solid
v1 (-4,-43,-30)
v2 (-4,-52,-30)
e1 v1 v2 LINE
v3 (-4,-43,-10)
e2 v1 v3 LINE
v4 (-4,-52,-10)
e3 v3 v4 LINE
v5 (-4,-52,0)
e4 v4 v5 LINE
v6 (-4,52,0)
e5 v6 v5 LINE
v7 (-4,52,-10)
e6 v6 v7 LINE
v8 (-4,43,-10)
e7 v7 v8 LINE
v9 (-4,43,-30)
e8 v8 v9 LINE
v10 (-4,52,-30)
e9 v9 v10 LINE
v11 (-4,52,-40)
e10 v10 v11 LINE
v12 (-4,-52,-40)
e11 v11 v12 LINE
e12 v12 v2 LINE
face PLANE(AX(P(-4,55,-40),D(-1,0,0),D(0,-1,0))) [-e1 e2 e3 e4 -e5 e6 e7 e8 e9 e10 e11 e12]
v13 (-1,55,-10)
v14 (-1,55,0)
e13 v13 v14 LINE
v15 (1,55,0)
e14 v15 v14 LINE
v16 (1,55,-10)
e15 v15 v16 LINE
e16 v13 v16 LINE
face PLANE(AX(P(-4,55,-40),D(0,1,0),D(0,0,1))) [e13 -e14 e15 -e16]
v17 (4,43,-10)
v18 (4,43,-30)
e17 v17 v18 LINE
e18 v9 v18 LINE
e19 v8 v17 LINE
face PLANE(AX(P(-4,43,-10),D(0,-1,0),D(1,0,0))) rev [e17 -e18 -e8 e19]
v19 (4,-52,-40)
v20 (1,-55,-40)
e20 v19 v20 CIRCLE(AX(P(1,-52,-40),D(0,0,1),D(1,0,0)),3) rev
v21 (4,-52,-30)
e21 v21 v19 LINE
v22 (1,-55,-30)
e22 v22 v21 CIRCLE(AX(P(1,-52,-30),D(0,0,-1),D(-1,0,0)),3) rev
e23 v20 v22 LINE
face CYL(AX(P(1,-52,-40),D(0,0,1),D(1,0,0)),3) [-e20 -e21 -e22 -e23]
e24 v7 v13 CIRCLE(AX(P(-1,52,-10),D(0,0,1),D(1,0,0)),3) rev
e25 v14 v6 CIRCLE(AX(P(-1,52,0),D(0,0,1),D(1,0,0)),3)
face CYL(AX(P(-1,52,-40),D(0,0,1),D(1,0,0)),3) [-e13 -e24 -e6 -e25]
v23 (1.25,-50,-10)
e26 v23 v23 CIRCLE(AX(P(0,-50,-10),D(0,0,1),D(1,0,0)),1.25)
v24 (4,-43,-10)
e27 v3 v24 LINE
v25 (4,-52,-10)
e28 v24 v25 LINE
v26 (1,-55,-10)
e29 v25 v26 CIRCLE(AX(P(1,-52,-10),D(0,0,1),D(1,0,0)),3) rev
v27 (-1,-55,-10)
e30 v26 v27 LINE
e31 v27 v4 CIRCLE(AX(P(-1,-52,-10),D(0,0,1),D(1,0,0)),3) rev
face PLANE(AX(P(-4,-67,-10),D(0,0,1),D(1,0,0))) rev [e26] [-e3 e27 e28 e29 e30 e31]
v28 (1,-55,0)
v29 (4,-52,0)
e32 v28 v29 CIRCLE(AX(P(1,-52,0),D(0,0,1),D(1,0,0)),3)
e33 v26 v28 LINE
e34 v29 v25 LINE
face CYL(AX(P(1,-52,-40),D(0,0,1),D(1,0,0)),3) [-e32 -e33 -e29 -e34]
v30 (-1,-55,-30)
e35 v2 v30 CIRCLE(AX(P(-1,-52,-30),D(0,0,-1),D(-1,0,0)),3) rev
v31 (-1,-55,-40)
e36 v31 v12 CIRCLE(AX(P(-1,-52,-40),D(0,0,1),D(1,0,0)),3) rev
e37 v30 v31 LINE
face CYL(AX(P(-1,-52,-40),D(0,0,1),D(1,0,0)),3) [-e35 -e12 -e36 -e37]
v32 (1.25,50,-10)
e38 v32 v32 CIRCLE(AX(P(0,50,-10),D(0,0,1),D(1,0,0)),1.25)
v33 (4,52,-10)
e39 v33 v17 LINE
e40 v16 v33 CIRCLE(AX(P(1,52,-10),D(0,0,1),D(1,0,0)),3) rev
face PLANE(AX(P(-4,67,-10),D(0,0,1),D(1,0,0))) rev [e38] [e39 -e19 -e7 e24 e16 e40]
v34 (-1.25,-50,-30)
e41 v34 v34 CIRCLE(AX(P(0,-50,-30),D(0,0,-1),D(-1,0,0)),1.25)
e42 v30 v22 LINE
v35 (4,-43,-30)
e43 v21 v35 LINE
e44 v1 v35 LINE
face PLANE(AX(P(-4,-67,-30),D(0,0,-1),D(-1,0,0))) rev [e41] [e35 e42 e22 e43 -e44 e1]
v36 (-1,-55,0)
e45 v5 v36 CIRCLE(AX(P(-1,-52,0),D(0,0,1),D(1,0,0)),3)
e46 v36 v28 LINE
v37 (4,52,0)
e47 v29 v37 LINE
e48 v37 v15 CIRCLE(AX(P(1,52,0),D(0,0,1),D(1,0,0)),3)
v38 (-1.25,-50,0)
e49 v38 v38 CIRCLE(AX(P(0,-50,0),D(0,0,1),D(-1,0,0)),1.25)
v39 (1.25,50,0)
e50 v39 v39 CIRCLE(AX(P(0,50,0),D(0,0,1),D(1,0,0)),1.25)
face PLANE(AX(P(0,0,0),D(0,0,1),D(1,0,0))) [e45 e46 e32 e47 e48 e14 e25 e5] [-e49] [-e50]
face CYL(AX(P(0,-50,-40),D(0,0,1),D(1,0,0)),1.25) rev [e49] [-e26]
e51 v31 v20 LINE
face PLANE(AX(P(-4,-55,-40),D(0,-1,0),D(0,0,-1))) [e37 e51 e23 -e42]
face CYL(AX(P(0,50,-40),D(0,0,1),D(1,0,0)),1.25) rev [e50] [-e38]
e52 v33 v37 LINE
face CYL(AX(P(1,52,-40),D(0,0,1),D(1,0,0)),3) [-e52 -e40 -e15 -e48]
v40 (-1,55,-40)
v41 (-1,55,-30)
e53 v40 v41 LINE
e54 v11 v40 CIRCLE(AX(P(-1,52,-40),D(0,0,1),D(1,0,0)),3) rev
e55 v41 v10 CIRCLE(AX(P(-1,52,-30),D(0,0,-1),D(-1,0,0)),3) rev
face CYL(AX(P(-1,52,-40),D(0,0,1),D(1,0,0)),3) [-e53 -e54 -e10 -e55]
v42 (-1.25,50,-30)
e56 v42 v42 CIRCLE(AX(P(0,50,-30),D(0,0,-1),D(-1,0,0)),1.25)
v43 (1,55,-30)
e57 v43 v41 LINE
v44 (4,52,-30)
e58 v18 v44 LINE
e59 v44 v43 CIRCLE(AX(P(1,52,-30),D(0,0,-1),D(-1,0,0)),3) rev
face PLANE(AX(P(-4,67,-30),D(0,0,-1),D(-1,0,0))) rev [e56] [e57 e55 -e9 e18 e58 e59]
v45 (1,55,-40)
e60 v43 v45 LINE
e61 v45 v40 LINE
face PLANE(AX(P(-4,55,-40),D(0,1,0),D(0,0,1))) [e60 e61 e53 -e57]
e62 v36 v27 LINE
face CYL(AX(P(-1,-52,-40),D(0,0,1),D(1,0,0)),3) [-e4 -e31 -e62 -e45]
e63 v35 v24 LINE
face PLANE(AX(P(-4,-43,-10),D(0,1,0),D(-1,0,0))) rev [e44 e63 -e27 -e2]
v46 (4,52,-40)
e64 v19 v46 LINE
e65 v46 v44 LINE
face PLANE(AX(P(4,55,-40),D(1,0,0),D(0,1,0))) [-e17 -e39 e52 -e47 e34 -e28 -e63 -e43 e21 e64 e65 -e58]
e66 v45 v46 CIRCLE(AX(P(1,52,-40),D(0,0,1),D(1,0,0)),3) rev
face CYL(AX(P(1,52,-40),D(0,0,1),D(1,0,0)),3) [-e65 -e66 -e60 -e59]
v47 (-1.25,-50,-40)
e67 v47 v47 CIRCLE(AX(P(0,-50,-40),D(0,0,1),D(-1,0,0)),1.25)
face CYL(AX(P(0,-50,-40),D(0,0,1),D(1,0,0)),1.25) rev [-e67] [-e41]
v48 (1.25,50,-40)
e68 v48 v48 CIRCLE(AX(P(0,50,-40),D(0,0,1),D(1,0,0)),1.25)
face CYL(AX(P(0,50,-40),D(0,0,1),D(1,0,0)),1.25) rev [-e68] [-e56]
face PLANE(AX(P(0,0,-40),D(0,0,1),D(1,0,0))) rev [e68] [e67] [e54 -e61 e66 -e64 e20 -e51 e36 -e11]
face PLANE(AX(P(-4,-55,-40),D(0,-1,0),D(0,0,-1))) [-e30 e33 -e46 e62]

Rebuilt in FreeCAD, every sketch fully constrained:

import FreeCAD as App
import Part
import Sketcher

V = App.Vector
Q = App.Units.Quantity


def edges_at(feature, points):
    """Names of the edges that pass closest to the given points."""
    edges = feature.Shape.Edges
    near = lambda p: min(range(len(edges)), key=lambda i: edges[i].distToShape(Part.Vertex(*p))[0])
    return sorted({f"Edge{near(p) + 1}" for p in points})


def add_polygon(sketch, points):
    """Adds a closed chain of lines whose ends are joined by coincident constraints."""
    first, n = sketch.GeometryCount, len(points)
    for a, b in zip(points, points[1:] + points[:1]):
        sketch.addGeometry(Part.LineSegment(App.Vector(*a, 0), App.Vector(*b, 0)), False)
    for i in range(n):
        sketch.addConstraint(Sketcher.Constraint("Coincident", first + i, 2, first + (i + 1) % n, 1))

doc = App.newDocument("Part")
body = doc.addObject("PartDesign::Body", "Body")

# Sketch on XY plane
sketch1 = doc.addObject("Sketcher::SketchObject", "Sketch")
body.addObject(sketch1)
sketch1.AttachmentSupport = (doc.XY_Plane, [""])
sketch1.MapMode = "FlatFace"
add_polygon(sketch1, [(-4, 55), (-4, -55), (4, -55), (4, 55)])  # lines 0-3
sketch1.addConstraint([
    Sketcher.Constraint("Vertical", 0),
    Sketcher.Constraint("Horizontal", 1),
    Sketcher.Constraint("Vertical", 2),
    Sketcher.Constraint("Horizontal", 3),
    Sketcher.Constraint("Symmetric", 0, 2, 2, 2, -1, 1),
    Sketcher.Constraint("DistanceX", 1, 1, 1, 2, Q("8 mm")),
    Sketcher.Constraint("DistanceY", 0, 2, 0, 1, Q("110 mm")),
])
pad1 = doc.addObject("PartDesign::Pad", "Pad")
body.addObject(pad1)
pad1.Profile = sketch1
pad1.Length = 40
pad1.Reversed = True

# Sketch on YZ plane
sketch2 = doc.addObject("Sketcher::SketchObject", "Sketch001")
body.addObject(sketch2)
sketch2.AttachmentSupport = (doc.YZ_Plane, [""])
sketch2.MapMode = "FlatFace"
sketch2.AttachmentOffset = App.Placement(V(0, 0, 4), App.Rotation())
add_polygon(sketch2, [(67, -10), (43, -10), (43, -30), (67, -30)])  # lines 0-3
add_polygon(sketch2, [(-43, -10), (-67, -10), (-67, -30), (-43, -30)])  # lines 4-7
sketch2.addConstraint([
    Sketcher.Constraint("Horizontal", 0),
    Sketcher.Constraint("Vertical", 1),
    Sketcher.Constraint("Horizontal", 2),
    Sketcher.Constraint("Vertical", 3),
    Sketcher.Constraint("Horizontal", 4),
    Sketcher.Constraint("Vertical", 5),
    Sketcher.Constraint("Horizontal", 6),
    Sketcher.Constraint("Vertical", 7),
    Sketcher.Constraint("Symmetric", 3, 2, 4, 2, -2),
    Sketcher.Constraint("Symmetric", 1, 2, 6, 2, -2),
    Sketcher.Constraint("DistanceX", 0, 2, 0, 1, Q("24 mm")),
    Sketcher.Constraint("DistanceY", 1, 2, 1, 1, Q("20 mm")),
    Sketcher.Constraint("DistanceX", -1, 1, 0, 2, Q("43 mm")),
    Sketcher.Constraint("DistanceY", 0, 2, -1, 1, Q("10 mm")),
])
pocket1 = doc.addObject("PartDesign::Pocket", "Pocket")
body.addObject(pocket1)
pocket1.Profile = sketch2
pocket1.Type = "ThroughAll"
doc.recompute()

fillet = doc.addObject("PartDesign::Fillet", "Fillet")
body.addObject(fillet)
fillet.Base = (pocket1, edges_at(pocket1, [
    (4, 55, -5),
    (-4, 55, -5),
    (-4, -55, -5),
    (4, -55, -5),
    (4, -55, -35),
    (-4, -55, -35),
    (-4, 55, -35),
    (4, 55, -35),
]))
fillet.Radius = 3

# Sketch on XY plane
sketch3 = doc.addObject("Sketcher::SketchObject", "Sketch002")
body.addObject(sketch3)
sketch3.AttachmentSupport = (doc.XY_Plane, [""])
sketch3.MapMode = "FlatFace"
sketch3.addGeometry([
    Part.Circle(V(0, 50, 0), V(0, 0, 1), 1.2),
    Part.Circle(V(0, -50, 0), V(0, 0, 1), 1.2),
], False)
sketch3.addConstraint([
    Sketcher.Constraint("Equal", 0, 1),
    Sketcher.Constraint("Symmetric", 0, 3, 1, 3, -1, 1),
    Sketcher.Constraint("PointOnObject", 0, 3, -2),
    Sketcher.Constraint("Diameter", 0, Q("2.5 mm")),
    Sketcher.Constraint("DistanceY", -1, 1, 0, 3, Q("50 mm")),
])
pocket2 = doc.addObject("PartDesign::Pocket", "Pocket001")
body.addObject(pocket2)
pocket2.Profile = sketch3
pocket2.Type = "ThroughAll"

doc.recompute()
